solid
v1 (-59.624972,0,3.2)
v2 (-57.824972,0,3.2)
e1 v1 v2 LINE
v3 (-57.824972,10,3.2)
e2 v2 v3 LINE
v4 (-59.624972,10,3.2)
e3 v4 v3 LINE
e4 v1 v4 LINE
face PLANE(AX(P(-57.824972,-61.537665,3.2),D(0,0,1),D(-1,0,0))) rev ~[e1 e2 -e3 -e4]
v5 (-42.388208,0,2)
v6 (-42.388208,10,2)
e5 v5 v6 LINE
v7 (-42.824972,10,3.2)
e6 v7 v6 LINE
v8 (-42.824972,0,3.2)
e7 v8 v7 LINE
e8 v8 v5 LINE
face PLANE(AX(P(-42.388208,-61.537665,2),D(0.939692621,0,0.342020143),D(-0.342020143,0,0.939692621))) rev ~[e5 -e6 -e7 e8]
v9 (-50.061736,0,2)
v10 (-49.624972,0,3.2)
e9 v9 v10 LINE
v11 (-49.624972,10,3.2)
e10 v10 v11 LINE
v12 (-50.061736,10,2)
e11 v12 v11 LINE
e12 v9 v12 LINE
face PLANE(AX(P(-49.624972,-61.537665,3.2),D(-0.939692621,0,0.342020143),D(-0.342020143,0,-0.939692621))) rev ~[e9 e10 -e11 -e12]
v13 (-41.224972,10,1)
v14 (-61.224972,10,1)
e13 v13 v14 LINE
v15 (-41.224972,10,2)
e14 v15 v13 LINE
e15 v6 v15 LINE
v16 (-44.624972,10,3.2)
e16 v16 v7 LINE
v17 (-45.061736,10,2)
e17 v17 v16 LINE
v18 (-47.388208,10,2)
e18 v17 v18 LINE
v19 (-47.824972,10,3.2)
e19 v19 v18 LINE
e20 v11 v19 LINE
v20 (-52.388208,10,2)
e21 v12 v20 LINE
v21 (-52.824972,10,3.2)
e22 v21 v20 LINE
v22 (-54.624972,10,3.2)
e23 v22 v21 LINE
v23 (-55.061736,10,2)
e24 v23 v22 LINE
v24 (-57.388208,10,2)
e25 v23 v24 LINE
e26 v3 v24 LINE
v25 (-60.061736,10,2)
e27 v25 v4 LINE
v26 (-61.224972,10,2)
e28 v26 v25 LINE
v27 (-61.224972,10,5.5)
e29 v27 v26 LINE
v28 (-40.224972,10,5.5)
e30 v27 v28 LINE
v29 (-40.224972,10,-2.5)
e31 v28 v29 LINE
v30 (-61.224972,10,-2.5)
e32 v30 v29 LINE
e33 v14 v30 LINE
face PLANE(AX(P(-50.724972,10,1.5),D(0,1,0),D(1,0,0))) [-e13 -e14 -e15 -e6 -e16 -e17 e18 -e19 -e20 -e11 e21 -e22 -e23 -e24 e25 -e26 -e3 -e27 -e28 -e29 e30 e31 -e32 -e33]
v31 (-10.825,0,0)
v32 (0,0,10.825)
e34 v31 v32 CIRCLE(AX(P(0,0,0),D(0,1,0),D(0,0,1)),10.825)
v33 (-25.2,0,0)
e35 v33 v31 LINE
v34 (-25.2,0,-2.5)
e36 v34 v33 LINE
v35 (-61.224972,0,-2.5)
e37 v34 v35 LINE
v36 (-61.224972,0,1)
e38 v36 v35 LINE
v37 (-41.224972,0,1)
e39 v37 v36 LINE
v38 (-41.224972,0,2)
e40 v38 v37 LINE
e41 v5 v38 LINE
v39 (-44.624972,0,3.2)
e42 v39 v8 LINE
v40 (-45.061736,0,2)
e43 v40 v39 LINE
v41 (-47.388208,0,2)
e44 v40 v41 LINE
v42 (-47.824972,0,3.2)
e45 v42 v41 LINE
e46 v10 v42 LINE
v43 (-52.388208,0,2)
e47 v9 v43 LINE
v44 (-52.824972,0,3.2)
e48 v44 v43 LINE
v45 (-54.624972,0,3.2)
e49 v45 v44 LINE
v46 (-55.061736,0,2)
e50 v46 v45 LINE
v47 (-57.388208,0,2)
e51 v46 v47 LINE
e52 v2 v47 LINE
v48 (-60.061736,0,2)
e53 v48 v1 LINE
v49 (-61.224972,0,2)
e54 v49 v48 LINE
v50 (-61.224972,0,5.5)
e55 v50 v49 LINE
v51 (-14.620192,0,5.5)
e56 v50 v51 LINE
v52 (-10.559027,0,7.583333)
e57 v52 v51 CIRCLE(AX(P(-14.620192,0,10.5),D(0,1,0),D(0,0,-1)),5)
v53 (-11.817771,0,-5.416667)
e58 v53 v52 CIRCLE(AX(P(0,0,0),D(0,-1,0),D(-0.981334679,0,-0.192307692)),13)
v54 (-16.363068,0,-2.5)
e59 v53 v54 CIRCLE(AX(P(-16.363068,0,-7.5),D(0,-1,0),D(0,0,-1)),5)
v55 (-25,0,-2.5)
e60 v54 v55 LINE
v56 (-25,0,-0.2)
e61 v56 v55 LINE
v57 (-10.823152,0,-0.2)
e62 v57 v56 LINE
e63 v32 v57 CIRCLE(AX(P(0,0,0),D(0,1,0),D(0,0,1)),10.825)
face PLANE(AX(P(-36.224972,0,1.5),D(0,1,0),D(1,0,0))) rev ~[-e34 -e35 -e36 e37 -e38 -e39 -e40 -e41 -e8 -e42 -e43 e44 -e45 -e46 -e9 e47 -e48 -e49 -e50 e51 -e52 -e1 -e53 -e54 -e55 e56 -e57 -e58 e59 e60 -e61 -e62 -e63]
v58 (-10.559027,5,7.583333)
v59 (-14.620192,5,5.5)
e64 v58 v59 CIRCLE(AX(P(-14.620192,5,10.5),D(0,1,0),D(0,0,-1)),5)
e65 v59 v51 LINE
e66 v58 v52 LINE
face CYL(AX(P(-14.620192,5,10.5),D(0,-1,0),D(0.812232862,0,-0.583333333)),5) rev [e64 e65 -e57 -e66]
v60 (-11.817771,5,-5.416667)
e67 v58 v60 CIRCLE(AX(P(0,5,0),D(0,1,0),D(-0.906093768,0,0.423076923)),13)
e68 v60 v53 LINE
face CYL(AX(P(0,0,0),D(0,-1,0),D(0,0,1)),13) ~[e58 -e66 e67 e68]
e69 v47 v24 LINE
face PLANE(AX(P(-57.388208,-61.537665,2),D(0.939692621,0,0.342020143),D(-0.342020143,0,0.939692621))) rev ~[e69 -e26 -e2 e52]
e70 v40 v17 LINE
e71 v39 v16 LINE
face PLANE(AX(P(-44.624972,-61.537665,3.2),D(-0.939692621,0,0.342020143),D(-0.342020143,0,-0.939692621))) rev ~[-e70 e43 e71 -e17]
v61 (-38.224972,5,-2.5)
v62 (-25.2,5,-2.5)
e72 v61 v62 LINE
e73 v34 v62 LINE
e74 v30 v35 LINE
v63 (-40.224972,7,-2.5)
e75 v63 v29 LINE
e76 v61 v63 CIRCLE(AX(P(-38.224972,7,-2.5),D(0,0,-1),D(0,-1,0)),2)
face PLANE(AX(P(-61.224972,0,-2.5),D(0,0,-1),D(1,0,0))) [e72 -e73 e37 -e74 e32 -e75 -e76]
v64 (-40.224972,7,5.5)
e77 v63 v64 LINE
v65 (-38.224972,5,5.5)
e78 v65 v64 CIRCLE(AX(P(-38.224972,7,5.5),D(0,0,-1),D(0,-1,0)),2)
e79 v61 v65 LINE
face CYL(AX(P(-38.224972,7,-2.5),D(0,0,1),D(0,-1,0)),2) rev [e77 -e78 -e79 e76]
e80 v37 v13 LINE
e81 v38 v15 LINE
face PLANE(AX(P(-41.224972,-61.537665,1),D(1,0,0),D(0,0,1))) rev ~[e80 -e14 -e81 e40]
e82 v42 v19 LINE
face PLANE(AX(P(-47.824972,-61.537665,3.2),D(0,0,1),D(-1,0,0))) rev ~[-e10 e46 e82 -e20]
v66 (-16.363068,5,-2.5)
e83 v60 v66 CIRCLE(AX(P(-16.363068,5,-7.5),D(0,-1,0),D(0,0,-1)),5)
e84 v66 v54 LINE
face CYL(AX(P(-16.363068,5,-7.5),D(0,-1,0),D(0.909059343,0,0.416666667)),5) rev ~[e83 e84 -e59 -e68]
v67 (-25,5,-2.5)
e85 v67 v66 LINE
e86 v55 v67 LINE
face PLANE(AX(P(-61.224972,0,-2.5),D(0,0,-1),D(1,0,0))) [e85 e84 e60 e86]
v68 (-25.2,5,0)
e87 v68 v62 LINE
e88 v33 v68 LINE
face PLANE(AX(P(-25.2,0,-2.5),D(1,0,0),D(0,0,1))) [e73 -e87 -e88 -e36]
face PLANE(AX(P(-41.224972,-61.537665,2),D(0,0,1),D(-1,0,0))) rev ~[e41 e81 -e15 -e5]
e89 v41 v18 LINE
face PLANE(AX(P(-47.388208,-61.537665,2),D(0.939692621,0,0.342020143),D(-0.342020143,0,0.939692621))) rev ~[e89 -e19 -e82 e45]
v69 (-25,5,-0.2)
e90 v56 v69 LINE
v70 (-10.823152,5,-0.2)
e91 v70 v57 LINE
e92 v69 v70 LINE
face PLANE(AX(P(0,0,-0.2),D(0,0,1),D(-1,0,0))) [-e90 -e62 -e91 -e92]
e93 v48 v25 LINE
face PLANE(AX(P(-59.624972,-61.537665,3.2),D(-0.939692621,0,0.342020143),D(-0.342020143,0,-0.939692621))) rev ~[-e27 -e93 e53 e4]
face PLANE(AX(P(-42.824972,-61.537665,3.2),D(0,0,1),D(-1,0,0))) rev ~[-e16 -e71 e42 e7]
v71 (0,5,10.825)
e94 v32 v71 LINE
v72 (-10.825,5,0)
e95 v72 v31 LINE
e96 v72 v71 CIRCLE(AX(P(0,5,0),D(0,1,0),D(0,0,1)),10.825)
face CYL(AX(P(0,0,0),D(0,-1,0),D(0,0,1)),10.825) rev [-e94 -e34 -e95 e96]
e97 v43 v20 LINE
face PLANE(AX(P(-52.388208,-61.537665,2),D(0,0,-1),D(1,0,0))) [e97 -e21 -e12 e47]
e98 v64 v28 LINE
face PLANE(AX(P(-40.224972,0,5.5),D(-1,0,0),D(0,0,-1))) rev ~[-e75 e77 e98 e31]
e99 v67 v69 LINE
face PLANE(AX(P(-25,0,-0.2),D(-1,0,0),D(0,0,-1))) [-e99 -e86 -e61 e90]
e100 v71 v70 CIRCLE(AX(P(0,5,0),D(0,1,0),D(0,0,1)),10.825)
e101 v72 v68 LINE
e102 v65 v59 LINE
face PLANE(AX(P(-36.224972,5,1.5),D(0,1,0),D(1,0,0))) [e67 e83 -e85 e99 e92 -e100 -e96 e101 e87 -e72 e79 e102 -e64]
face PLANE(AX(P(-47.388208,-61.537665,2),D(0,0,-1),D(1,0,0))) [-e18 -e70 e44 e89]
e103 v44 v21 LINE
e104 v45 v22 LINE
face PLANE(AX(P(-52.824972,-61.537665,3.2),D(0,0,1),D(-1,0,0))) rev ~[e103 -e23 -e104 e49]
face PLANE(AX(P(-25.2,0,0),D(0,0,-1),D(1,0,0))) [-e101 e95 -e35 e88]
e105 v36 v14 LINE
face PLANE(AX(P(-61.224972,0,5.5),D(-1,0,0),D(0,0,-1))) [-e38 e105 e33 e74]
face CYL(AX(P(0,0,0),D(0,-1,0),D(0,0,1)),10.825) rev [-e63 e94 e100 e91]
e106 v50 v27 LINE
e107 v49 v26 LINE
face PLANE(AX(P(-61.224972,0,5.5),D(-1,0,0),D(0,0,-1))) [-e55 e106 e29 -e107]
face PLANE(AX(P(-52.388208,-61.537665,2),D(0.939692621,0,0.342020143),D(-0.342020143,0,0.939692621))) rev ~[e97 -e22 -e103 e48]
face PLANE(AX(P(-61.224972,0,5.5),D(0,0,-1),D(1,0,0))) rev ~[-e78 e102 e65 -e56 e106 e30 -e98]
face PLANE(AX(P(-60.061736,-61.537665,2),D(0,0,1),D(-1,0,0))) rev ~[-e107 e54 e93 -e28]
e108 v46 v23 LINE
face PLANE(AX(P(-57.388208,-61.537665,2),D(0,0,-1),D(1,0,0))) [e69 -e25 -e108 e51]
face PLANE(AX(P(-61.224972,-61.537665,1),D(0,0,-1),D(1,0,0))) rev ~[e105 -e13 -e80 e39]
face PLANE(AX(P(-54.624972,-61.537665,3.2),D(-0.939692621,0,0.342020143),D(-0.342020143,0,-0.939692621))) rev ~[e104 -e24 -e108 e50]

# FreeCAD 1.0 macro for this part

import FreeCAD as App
import Part
import Sketcher

V = App.Vector
Q = App.Units.Quantity


def edges_at(feature, points):
    """Names of the edges that pass closest to the given points."""
    edges = feature.Shape.Edges
    near = lambda p: min(range(len(edges)), key=lambda i: edges[i].distToShape(Part.Vertex(*p))[0])
    return sorted({f"Edge{near(p) + 1}" for p in points})


def add_polygon(sketch, points):
    """Adds a closed chain of lines whose ends are joined by coincident constraints."""
    first, n = sketch.GeometryCount, len(points)
    for a, b in zip(points, points[1:] + points[:1]):
        sketch.addGeometry(Part.LineSegment(App.Vector(*a, 0), App.Vector(*b, 0)), False)
    for i in range(n):
        sketch.addConstraint(Sketcher.Constraint("Coincident", first + i, 2, first + (i + 1) % n, 1))

doc = App.newDocument("Part")
params = doc.addObject("Spreadsheet::Sheet", "Params")
for row, (alias, value) in enumerate([
    ("sketch1_diameter", "26 mm"),
    ("sketch1_diameter2", "21.65 mm"),
    ("pad1_length", "5 mm"),
    ("sketch2_width", "50 mm"),
    ("sketch2_height", "8 mm"),
    ("pad2_length", "5 mm"),
    ("sketch3_width", "21 mm"),
    ("sketch3_height", "8 mm"),
    ("pad3_length", "10 mm"),
    ("fillet_radius", "5 mm"),
    ("fillet2_radius", "2 mm"),
    ("sketch4_width", "20 mm"),
    ("sketch4_height", "1 mm"),
    ("sketch4_width2", "1.8 mm"),
    ("sketch5_width", "25 mm"),
    ("sketch5_width2", "0.2 mm"),
    ("sketch5_height", "2.5 mm"),
], start=1):
    params.set(f"A{row}", alias)
    params.set(f"B{row}", "=" + value)
    params.setAlias(f"B{row}", alias)

body = doc.addObject("PartDesign::Body", "Body")

# Sketch on XZ plane
sketch1 = body.newObject("Sketcher::SketchObject", "Sketch")
sketch1.AttachmentSupport = (doc.getObject("XZ_Plane"), [""])
sketch1.MapMode = "FlatFace"
sketch1.addGeometry([
    Part.Circle(V(0, 0, 0), V(0, 0, 1), 13),
    Part.Circle(V(0, 0, 0), V(0, 0, 1), 10.825),
], False)
sketch1.addConstraint([
    Sketcher.Constraint("Coincident", 0, 3, -1, 1),
    Sketcher.Constraint("Coincident", 1, 3, -1, 1),
    Sketcher.Constraint("Diameter", 0, 26.0),
    Sketcher.Constraint("Diameter", 1, 21.65),
])
sketch1.setExpression("Constraints[2]", "Params.sketch1_diameter")
sketch1.setExpression("Constraints[3]", "Params.sketch1_diameter2")
pad1 = body.newObject("PartDesign::Pad", "Pad")
pad1.Profile = sketch1
pad1.setExpression("Length", "Params.pad1_length")
pad1.Reversed = True

# Sketch on XZ plane
sketch2 = body.newObject("Sketcher::SketchObject", "Sketch001")
sketch2.AttachmentSupport = (doc.getObject("XZ_Plane"), [""])
sketch2.MapMode = "FlatFace"
add_polygon(sketch2, [(-61.224972, -2.5), (-61.224972, 5.5), (-11.224972, 5.5), (-11.224972, -2.5)])  # lines 0-3
sketch2.addConstraint([
    Sketcher.Constraint("Vertical", 0),
    Sketcher.Constraint("Horizontal", 1),
    Sketcher.Constraint("Vertical", 2),
    Sketcher.Constraint("Horizontal", 3),
    Sketcher.Constraint("DistanceX", 1, 1, 1, 2, 50.0),
    Sketcher.Constraint("DistanceY", 0, 1, 0, 2, 8.0),
    Sketcher.Constraint("DistanceY", -1, 1, 0, 2, 5.5),
    Sketcher.Constraint("DistanceX", 0, 2, -1, 1, 61.224972),
])
sketch2.setExpression("Constraints[8]", "Params.sketch2_width")
sketch2.setExpression("Constraints[9]", "Params.sketch2_height")
pad2 = body.newObject("PartDesign::Pad", "Pad001")
pad2.Profile = sketch2
pad2.setExpression("Length", "Params.pad2_length")
pad2.Reversed = True

# Sketch on XZ plane
sketch3 = body.newObject("Sketcher::SketchObject", "Sketch002")
sketch3.AttachmentSupport = (doc.getObject("XZ_Plane"), [""])
sketch3.MapMode = "FlatFace"
add_polygon(sketch3, [(-61.224972, -2.5), (-61.224972, 5.5), (-40.224972, 5.5), (-40.224972, -2.5)])  # lines 0-3
sketch3.addConstraint([
    Sketcher.Constraint("Vertical", 0),
    Sketcher.Constraint("Horizontal", 1),
    Sketcher.Constraint("Vertical", 2),
    Sketcher.Constraint("Horizontal", 3),
    Sketcher.Constraint("DistanceX", 1, 1, 1, 2, 21.0),
    Sketcher.Constraint("DistanceY", 0, 1, 0, 2, 8.0),
    Sketcher.Constraint("DistanceY", -1, 1, 0, 2, 5.5),
    Sketcher.Constraint("DistanceX", 0, 2, -1, 1, 61.224972),
])
sketch3.setExpression("Constraints[8]", "Params.sketch3_width")
sketch3.setExpression("Constraints[9]", "Params.sketch3_height")
pad3 = body.newObject("PartDesign::Pad", "Pad002")
pad3.Profile = sketch3
pad3.setExpression("Length", "Params.pad3_length")
pad3.Reversed = True
doc.recompute()

fillet = body.newObject("PartDesign::Fillet", "Fillet")
fillet.Base = (pad3, edges_at(pad3, [(-11.779, 2.5, 5.5), (-12.757, 2.5, -2.5)]))
fillet.setExpression("Radius", "Params.fillet_radius")
doc.recompute()

fillet2 = body.newObject("PartDesign::Fillet", "Fillet001")
fillet2.Base = (fillet, edges_at(fillet, [(-40.225, 5, 1.5)]))
fillet2.setExpression("Radius", "Params.fillet2_radius")

# Sketch on XZ plane
sketch4 = body.newObject("Sketcher::SketchObject", "Sketch003")
sketch4.AttachmentSupport = (doc.getObject("XZ_Plane"), [""])
sketch4.MapMode = "FlatFace"
sketch4.AttachmentOffset = App.Placement(V(0, 0, -2.5), App.Rotation())
add_polygon(sketch4, [(-41.224972, 1), (-61.224972, 1), (-61.224972, 2), (-60.061736, 2), (-59.624972, 3.2), (-57.824972, 3.2), (-57.388208, 2), (-55.061736, 2), (-54.624972, 3.2), (-52.824972, 3.2), (-52.388208, 2), (-50.061736, 2), (-49.624972, 3.2), (-47.824972, 3.2), (-47.388208, 2), (-45.061736, 2), (-44.624972, 3.2), (-42.824972, 3.2), (-42.388208, 2), (-41.224972, 2)])  # lines 0-19
sketch4.addConstraint([
    Sketcher.Constraint("Horizontal", 0),
    Sketcher.Constraint("Vertical", 1),
    Sketcher.Constraint("Horizontal", 2),
    Sketcher.Constraint("Horizontal", 4),
    Sketcher.Constraint("Horizontal", 6),
    Sketcher.Constraint("Horizontal", 8),
    Sketcher.Constraint("Horizontal", 10),
    Sketcher.Constraint("Horizontal", 12),
    Sketcher.Constraint("Horizontal", 14),
    Sketcher.Constraint("Horizontal", 16),
    Sketcher.Constraint("Horizontal", 18),
    Sketcher.Constraint("Vertical", 19),
    Sketcher.Constraint("Parallel", 3, 7),
    Sketcher.Constraint("Parallel", 5, 9),
    Sketcher.Constraint("Parallel", 7, 11),
    Sketcher.Constraint("Parallel", 9, 13),
    Sketcher.Constraint("Parallel", 11, 15),
    Sketcher.Constraint("Parallel", 13, 17),
    Sketcher.Constraint("Horizontal", 2, 2, 5, 2),
    Sketcher.Constraint("Horizontal", 4, 2, 7, 2),
    Sketcher.Constraint("Horizontal", 6, 2, 9, 2),
    Sketcher.Constraint("Horizontal", 8, 2, 11, 2),
    Sketcher.Constraint("Horizontal", 10, 2, 13, 2),
    Sketcher.Constraint("Horizontal", 12, 2, 15, 2),
    Sketcher.Constraint("Horizontal", 14, 2, 17, 2),
    Sketcher.Constraint("Equal", 4, 8),
    Sketcher.Constraint("Equal", 6, 10),
    Sketcher.Constraint("Equal", 8, 12),
    Sketcher.Constraint("Equal", 10, 14),
    Sketcher.Constraint("Equal", 12, 16),
    Sketcher.Constraint("Equal", 2, 18),
    Sketcher.Constraint("Equal", 3, 5),
    Sketcher.Constraint("DistanceX", 0, 2, 0, 1, 20.0),
    Sketcher.Constraint("DistanceY", 1, 1, 1, 2, 1.0),
    Sketcher.Constraint("Angle", 3, Q("70 deg")),
    Sketcher.Constraint("DistanceX", 4, 1, 4, 2, 1.8),
    Sketcher.Constraint("DistanceY", -1, 1, 0, 2, 1.0),
    Sketcher.Constraint("DistanceX", 2, 2, 6, 2, 5.0),
    Sketcher.Constraint("DistanceY", -1, 1, 3, 2, 3.2),
    Sketcher.Constraint("DistanceX", 0, 2, -1, 1, 61.224972),
])
sketch4.setExpression("Constraints[52]", "Params.sketch4_width")
sketch4.setExpression("Constraints[53]", "Params.sketch4_height")
sketch4.setExpression("Constraints[55]", "Params.sketch4_width2")
pocket1 = body.newObject("PartDesign::Pocket", "Pocket")
pocket1.Profile = sketch4
pocket1.Type = "ThroughAll"
pocket1.Midplane = True

# Sketch on XZ plane
sketch5 = body.newObject("Sketcher::SketchObject", "Sketch004")
sketch5.AttachmentSupport = (doc.getObject("XZ_Plane"), [""])
sketch5.MapMode = "FlatFace"
add_polygon(sketch5, [(-25.2, 0), (-25.2, -2.5), (-25, -2.5), (-25, -0.2), (0, -0.2), (0, 0)])  # lines 0-5
sketch5.addConstraint([
    Sketcher.Constraint("Vertical", 0),
    Sketcher.Constraint("Horizontal", 1),
    Sketcher.Constraint("Vertical", 2),
    Sketcher.Constraint("Horizontal", 3),
    Sketcher.Constraint("Vertical", 4),
    Sketcher.Constraint("Horizontal", 5),
    Sketcher.Constraint("Coincident", 4, 2, -1, 1),
    Sketcher.Constraint("Equal", 1, 4),
    Sketcher.Constraint("DistanceX", 3, 1, 3, 2, 25.0),
    Sketcher.Constraint("DistanceX", 1, 1, 1, 2, 0.2),
    Sketcher.Constraint("DistanceY", 0, 2, 0, 1, 2.5),
])
sketch5.setExpression("Constraints[14]", "Params.sketch5_width")
sketch5.setExpression("Constraints[15]", "Params.sketch5_width2")
sketch5.setExpression("Constraints[16]", "Params.sketch5_height")
pocket2 = body.newObject("PartDesign::Pocket", "Pocket001")
pocket2.Profile = sketch5
pocket2.Type = "ThroughAll"

doc.recompute()
